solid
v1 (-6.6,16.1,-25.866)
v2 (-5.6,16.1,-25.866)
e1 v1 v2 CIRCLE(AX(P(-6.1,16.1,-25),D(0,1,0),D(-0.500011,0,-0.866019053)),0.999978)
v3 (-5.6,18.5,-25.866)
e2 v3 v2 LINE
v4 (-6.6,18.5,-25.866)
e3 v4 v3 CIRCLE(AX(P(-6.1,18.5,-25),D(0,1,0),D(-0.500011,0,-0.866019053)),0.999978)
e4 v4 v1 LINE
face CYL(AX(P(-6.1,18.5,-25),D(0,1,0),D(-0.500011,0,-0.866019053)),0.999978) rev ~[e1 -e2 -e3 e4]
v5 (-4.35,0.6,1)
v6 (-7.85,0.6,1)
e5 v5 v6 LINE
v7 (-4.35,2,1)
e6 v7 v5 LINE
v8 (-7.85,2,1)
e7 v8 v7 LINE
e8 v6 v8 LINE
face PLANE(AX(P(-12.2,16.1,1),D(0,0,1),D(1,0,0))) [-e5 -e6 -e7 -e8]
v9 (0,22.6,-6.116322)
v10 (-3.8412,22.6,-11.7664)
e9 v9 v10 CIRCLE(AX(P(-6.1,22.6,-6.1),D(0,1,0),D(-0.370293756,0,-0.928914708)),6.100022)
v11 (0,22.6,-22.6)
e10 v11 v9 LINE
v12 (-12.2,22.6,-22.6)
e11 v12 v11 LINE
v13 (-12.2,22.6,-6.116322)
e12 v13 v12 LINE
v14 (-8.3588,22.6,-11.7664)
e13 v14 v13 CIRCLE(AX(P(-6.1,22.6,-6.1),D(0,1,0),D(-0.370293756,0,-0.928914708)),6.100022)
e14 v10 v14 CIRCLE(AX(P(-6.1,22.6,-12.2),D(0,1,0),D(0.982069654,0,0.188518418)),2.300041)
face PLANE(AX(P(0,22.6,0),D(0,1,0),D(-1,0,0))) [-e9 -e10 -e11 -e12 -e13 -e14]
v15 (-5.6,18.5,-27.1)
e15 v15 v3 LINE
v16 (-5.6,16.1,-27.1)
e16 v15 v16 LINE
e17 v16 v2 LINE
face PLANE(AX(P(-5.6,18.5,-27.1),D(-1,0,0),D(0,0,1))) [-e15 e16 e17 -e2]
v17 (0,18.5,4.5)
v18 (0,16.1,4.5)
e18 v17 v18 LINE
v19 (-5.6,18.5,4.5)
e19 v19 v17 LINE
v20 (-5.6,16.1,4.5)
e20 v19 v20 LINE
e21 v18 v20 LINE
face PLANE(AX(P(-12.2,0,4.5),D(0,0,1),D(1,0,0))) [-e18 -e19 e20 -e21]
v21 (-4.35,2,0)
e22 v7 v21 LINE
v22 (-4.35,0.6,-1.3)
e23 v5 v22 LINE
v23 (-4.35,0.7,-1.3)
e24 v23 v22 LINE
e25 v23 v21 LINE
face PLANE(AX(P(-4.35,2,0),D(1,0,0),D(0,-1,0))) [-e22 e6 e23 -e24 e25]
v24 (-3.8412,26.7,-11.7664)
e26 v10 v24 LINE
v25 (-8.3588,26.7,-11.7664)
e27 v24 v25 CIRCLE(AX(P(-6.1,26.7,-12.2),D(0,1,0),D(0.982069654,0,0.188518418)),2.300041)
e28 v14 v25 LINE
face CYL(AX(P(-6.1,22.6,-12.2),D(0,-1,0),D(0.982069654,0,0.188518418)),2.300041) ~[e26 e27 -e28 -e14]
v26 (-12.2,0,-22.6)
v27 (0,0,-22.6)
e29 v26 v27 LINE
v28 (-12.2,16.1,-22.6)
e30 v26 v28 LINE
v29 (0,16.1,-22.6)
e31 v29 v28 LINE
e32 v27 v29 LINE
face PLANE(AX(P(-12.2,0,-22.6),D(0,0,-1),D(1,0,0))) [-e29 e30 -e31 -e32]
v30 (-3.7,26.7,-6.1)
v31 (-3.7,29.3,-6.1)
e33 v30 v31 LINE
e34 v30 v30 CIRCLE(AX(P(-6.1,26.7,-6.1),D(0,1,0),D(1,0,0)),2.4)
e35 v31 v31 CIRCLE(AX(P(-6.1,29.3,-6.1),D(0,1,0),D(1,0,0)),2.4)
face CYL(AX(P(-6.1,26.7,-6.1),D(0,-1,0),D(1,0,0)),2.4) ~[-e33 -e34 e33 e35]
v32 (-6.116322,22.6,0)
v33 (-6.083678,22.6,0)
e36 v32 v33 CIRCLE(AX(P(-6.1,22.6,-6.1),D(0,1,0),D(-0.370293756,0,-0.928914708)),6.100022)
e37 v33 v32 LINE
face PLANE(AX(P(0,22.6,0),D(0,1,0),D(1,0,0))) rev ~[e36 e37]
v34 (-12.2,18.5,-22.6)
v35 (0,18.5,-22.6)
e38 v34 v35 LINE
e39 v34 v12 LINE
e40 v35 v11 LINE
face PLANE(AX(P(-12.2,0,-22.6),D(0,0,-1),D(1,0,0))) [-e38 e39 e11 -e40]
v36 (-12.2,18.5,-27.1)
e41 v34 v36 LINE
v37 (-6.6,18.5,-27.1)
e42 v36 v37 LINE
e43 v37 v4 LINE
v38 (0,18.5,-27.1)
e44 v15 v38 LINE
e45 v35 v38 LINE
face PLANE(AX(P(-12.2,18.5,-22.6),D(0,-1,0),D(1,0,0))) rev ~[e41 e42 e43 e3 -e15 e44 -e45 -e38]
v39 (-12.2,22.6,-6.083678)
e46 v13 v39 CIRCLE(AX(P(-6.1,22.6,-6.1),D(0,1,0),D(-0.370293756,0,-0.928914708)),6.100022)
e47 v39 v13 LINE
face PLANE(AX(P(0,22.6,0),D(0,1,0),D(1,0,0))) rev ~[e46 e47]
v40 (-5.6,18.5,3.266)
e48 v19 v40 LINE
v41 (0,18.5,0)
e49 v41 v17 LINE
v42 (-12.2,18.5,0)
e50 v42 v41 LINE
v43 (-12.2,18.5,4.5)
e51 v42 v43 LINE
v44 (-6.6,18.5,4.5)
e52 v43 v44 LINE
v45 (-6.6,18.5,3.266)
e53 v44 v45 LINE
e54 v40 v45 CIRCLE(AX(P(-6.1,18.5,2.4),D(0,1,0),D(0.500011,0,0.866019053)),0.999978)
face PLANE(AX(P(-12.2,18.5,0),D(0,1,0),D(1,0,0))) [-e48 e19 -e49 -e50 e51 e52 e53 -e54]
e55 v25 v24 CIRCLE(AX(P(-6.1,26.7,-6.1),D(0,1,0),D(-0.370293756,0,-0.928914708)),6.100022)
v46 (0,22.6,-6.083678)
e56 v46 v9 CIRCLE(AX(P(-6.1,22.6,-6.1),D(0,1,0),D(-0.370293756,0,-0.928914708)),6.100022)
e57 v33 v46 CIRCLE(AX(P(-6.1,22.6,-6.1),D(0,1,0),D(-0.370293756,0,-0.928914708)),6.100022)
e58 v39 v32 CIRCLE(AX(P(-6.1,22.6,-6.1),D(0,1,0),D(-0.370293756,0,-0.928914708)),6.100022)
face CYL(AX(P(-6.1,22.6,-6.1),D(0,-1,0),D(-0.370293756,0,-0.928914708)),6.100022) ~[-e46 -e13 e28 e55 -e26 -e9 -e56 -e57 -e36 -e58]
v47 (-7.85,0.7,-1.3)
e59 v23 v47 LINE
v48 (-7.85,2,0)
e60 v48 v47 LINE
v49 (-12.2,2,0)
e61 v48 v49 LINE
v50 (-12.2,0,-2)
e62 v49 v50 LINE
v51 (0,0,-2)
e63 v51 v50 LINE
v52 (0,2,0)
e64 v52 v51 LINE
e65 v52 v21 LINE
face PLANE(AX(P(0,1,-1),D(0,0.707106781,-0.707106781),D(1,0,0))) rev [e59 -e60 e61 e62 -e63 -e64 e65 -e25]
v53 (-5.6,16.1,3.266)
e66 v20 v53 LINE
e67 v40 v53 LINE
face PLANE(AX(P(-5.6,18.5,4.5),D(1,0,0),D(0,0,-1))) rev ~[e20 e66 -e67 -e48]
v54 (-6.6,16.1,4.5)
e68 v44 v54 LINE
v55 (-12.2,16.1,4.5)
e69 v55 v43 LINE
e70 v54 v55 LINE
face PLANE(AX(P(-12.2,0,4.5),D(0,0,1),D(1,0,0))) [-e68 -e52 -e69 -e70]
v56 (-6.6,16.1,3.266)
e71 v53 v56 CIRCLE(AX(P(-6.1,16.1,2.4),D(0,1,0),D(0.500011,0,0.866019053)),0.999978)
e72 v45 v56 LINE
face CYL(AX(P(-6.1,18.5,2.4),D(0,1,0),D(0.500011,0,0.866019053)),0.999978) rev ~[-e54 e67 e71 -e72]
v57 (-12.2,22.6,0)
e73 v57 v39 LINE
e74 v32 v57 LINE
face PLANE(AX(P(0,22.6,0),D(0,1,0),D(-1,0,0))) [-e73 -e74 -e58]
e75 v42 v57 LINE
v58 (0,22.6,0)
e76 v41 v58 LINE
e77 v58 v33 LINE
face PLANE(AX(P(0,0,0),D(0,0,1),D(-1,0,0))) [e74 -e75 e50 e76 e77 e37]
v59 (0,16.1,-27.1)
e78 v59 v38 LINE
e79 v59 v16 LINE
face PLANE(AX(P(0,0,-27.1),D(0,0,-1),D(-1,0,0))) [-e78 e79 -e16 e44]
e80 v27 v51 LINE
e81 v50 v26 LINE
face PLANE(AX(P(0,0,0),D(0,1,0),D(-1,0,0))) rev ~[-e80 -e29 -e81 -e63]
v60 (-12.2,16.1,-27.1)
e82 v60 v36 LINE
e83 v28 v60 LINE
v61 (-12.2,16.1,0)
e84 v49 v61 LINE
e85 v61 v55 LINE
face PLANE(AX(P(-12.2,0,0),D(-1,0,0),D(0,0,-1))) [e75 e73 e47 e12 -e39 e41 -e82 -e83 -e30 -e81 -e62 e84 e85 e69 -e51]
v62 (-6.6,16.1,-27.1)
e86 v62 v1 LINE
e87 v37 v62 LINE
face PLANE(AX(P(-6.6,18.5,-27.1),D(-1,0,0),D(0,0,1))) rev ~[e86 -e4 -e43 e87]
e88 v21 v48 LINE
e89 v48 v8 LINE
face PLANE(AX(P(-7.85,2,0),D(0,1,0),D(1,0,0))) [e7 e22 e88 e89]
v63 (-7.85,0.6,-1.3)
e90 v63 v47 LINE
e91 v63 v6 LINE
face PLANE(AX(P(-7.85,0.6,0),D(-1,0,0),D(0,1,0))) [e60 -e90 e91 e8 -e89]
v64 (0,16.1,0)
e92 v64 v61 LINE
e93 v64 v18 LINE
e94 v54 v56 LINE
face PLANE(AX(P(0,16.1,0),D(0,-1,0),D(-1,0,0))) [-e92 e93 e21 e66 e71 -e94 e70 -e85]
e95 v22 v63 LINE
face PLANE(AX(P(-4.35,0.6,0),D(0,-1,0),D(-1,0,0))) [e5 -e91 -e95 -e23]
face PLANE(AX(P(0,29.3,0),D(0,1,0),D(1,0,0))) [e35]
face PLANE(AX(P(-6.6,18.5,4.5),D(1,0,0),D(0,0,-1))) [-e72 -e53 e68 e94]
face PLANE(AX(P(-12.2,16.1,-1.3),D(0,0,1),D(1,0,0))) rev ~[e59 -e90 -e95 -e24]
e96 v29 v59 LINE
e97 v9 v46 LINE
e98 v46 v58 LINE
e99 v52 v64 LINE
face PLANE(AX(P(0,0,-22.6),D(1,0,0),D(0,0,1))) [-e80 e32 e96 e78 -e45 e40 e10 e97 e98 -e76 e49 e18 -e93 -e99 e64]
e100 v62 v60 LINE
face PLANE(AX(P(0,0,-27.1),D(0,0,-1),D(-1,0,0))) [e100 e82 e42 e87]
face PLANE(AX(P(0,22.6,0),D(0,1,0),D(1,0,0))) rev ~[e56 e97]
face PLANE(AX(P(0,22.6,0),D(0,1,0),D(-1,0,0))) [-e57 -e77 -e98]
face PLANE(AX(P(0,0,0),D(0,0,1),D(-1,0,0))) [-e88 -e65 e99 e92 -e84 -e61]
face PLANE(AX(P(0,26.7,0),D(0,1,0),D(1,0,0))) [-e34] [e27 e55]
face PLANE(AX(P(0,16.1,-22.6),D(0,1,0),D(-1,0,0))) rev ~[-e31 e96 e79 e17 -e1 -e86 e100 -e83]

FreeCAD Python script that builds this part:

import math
import FreeCAD as App
import Part
import Sketcher


def edges_at(feature, points):
    """Names of the edges that pass closest to the given points."""
    edges = feature.Shape.Edges
    near = lambda p: min(range(len(edges)), key=lambda i: edges[i].distToShape(Part.Vertex(*p))[0])
    return sorted({f"Edge{near(p) + 1}" for p in points})

doc = App.newDocument("Part")
body = doc.addObject("PartDesign::Body", "Body")

sketch1 = doc.addObject("Sketcher::SketchObject", "Sketch")
body.addObject(sketch1)
sketch1.AttachmentSupport = (doc.XZ_Plane, [""])
sketch1.MapMode = "FlatFace"
sketch1.addGeometry(Part.LineSegment(App.Vector(-12, 0, 0), App.Vector(0, 0, 0)), False)
sketch1.addGeometry(Part.LineSegment(App.Vector(0, 0, 0), App.Vector(0, -23, 0)), False)
sketch1.addGeometry(Part.LineSegment(App.Vector(0, -23, 0), App.Vector(-12, -23, 0)), False)
sketch1.addGeometry(Part.LineSegment(App.Vector(-12, -23, 0), App.Vector(-12, 0, 0)), False)
sketch1.addConstraint(Sketcher.Constraint("Coincident", 0, 2, 1, 1))
sketch1.addConstraint(Sketcher.Constraint("Coincident", 1, 2, 2, 1))
sketch1.addConstraint(Sketcher.Constraint("Coincident", 2, 2, 3, 1))
sketch1.addConstraint(Sketcher.Constraint("Coincident", 3, 2, 0, 1))
sketch1.addConstraint(Sketcher.Constraint("Horizontal", 0))
sketch1.addConstraint(Sketcher.Constraint("Vertical", 1))
sketch1.addConstraint(Sketcher.Constraint("Horizontal", 2))
sketch1.addConstraint(Sketcher.Constraint("Vertical", 3))
sketch1.addConstraint(Sketcher.Constraint("Coincident", 0, 2, -1, 1))
sketch1.addConstraint(Sketcher.Constraint("DistanceX", 0, 1, 0, 2, 12.2))
sketch1.addConstraint(Sketcher.Constraint("DistanceY", 1, 2, 1, 1, 22.6))
pad1 = doc.addObject("PartDesign::Pad", "Pad")
body.addObject(pad1)
pad1.Profile = sketch1
pad1.Length = 22.6
pad1.Reversed = True

sketch2 = doc.addObject("Sketcher::SketchObject", "Sketch001")
body.addObject(sketch2)
sketch2.AttachmentSupport = (doc.XY_Plane, [""])
sketch2.MapMode = "FlatFace"
sketch2.addGeometry(Part.LineSegment(App.Vector(0, 18.5, 0), App.Vector(-12.2, 18.5, 0)), False)
sketch2.addGeometry(Part.LineSegment(App.Vector(-12.2, 18.5, 0), App.Vector(-12.2, 16.1, 0)), False)
sketch2.addGeometry(Part.LineSegment(App.Vector(-12.2, 16.1, 0), App.Vector(0, 16.1, 0)), False)
sketch2.addGeometry(Part.LineSegment(App.Vector(0, 16.1, 0), App.Vector(0, 18.5, 0)), False)
sketch2.addConstraint(Sketcher.Constraint("Coincident", 0, 2, 1, 1))
sketch2.addConstraint(Sketcher.Constraint("Coincident", 1, 2, 2, 1))
sketch2.addConstraint(Sketcher.Constraint("Coincident", 2, 2, 3, 1))
sketch2.addConstraint(Sketcher.Constraint("Coincident", 3, 2, 0, 1))
sketch2.addConstraint(Sketcher.Constraint("Horizontal", 0))
sketch2.addConstraint(Sketcher.Constraint("Vertical", 1))
sketch2.addConstraint(Sketcher.Constraint("Horizontal", 2))
sketch2.addConstraint(Sketcher.Constraint("Vertical", 3))
sketch2.addConstraint(Sketcher.Constraint("PointOnObject", 2, 2, -2))
sketch2.addConstraint(Sketcher.Constraint("DistanceY", 1, 2, 1, 1, 2.4))
sketch2.addConstraint(Sketcher.Constraint("DistanceX", 0, 2, 0, 1, 12.2))
sketch2.addConstraint(Sketcher.Constraint("DistanceY", -1, 1, 0, 2, 18.5))
pad2 = doc.addObject("PartDesign::Pad", "Pad001")
body.addObject(pad2)
pad2.Profile = sketch2
pad2.Length = 4.5

sketch3 = doc.addObject("Sketcher::SketchObject", "Sketch002")
body.addObject(sketch3)
sketch3.AttachmentSupport = (doc.XY_Plane, [""])
sketch3.MapMode = "FlatFace"
sketch3.AttachmentOffset = App.Placement(App.Vector(0, 0, -22.6), App.Rotation())
sketch3.addGeometry(Part.LineSegment(App.Vector(-12.2, 16.1, 0), App.Vector(-12.2, 18.5, 0)), False)
sketch3.addGeometry(Part.LineSegment(App.Vector(-12.2, 18.5, 0), App.Vector(0, 18.5, 0)), False)
sketch3.addGeometry(Part.LineSegment(App.Vector(0, 18.5, 0), App.Vector(0, 16.1, 0)), False)
sketch3.addGeometry(Part.LineSegment(App.Vector(0, 16.1, 0), App.Vector(-12.2, 16.1, 0)), False)
sketch3.addConstraint(Sketcher.Constraint("Coincident", 0, 2, 1, 1))
sketch3.addConstraint(Sketcher.Constraint("Coincident", 1, 2, 2, 1))
sketch3.addConstraint(Sketcher.Constraint("Coincident", 2, 2, 3, 1))
sketch3.addConstraint(Sketcher.Constraint("Coincident", 3, 2, 0, 1))
sketch3.addConstraint(Sketcher.Constraint("Vertical", 0))
sketch3.addConstraint(Sketcher.Constraint("Horizontal", 1))
sketch3.addConstraint(Sketcher.Constraint("Vertical", 2))
sketch3.addConstraint(Sketcher.Constraint("Horizontal", 3))
sketch3.addConstraint(Sketcher.Constraint("PointOnObject", 1, 2, -2))
sketch3.addConstraint(Sketcher.Constraint("DistanceX", 1, 1, 1, 2, 12.2))
sketch3.addConstraint(Sketcher.Constraint("DistanceY", 0, 1, 0, 2, 2.4))
sketch3.addConstraint(Sketcher.Constraint("DistanceY", -1, 1, 0, 2, 18.5))
pad3 = doc.addObject("PartDesign::Pad", "Pad002")
body.addObject(pad3)
pad3.Profile = sketch3
pad3.Length = 4.5
pad3.Reversed = True

sketch4 = doc.addObject("Sketcher::SketchObject", "Sketch003")
body.addObject(sketch4)
sketch4.AttachmentSupport = (doc.XZ_Plane, [""])
sketch4.MapMode = "FlatFace"
sketch4.AttachmentOffset = App.Placement(App.Vector(0, 0, -18.5), App.Rotation())
sketch4.addGeometry(Part.LineSegment(App.Vector(-6.6, 3.3, 0), App.Vector(-6.6, 4.5, 0)), False)
sketch4.addGeometry(Part.LineSegment(App.Vector(-6.6, 4.5, 0), App.Vector(-5.6, 4.5, 0)), False)
sketch4.addGeometry(Part.LineSegment(App.Vector(-5.6, 4.5, 0), App.Vector(-5.6, 3.3, 0)), False)
sketch4.addGeometry(Part.ArcOfCircle(Part.Circle(App.Vector(-6.1, 2.4, 0), App.Vector(0, 0, 1), 1), math.radians(120), math.radians(420)), False)
sketch4.addGeometry(Part.LineSegment(App.Vector(-5.6, -27.1, 0), App.Vector(-6.6, -27.1, 0)), False)
sketch4.addGeometry(Part.LineSegment(App.Vector(-6.6, -27.1, 0), App.Vector(-6.6, -25.9, 0)), False)
sketch4.addGeometry(Part.ArcOfCircle(Part.Circle(App.Vector(-6.1, -25, 0), App.Vector(0, 0, 1), 1), math.radians(-60), math.radians(240)), False)
sketch4.addGeometry(Part.LineSegment(App.Vector(-5.6, -25.9, 0), App.Vector(-5.6, -27.1, 0)), False)
sketch4.addConstraint(Sketcher.Constraint("Coincident", 0, 2, 1, 1))
sketch4.addConstraint(Sketcher.Constraint("Coincident", 1, 2, 2, 1))
sketch4.addConstraint(Sketcher.Constraint("Coincident", 2, 2, 3, 2))
sketch4.addConstraint(Sketcher.Constraint("Coincident", 3, 1, 0, 1))
sketch4.addConstraint(Sketcher.Constraint("Coincident", 4, 2, 5, 1))
sketch4.addConstraint(Sketcher.Constraint("Coincident", 5, 2, 6, 2))
sketch4.addConstraint(Sketcher.Constraint("Coincident", 6, 1, 7, 1))
sketch4.addConstraint(Sketcher.Constraint("Coincident", 7, 2, 4, 1))
sketch4.addConstraint(Sketcher.Constraint("Vertical", 0))
sketch4.addConstraint(Sketcher.Constraint("Horizontal", 1))
sketch4.addConstraint(Sketcher.Constraint("Vertical", 2))
sketch4.addConstraint(Sketcher.Constraint("Horizontal", 4))
sketch4.addConstraint(Sketcher.Constraint("Vertical", 5))
sketch4.addConstraint(Sketcher.Constraint("Vertical", 7))
sketch4.addConstraint(Sketcher.Constraint("Equal", 3, 6))
sketch4.addConstraint(Sketcher.Constraint("Horizontal", 2, 2, 3, 1))
sketch4.addConstraint(Sketcher.Constraint("Horizontal", 5, 2, 6, 1))
sketch4.addConstraint(Sketcher.Constraint("Vertical", 3, 3, 6, 3))
sketch4.addConstraint(Sketcher.Constraint("Vertical", 3, 1, 4, 2))
sketch4.addConstraint(Sketcher.Constraint("Equal", 2, 5))
sketch4.addConstraint(Sketcher.Constraint("Radius", 3, 1.0))
sketch4.addConstraint(Sketcher.Constraint("DistanceX", 1, 1, 1, 2, 1.0))
sketch4.addConstraint(Sketcher.Constraint("DistanceY", 3, 3, 0, 2, 2.1))
sketch4.addConstraint(Sketcher.Constraint("DistanceY", 6, 3, -1, 1, 25.0))
sketch4.addConstraint(Sketcher.Constraint("DistanceX", 3, 3, -1, 1, 6.1))
sketch4.addConstraint(Sketcher.Constraint("DistanceY", -1, 1, 3, 3, 2.4))
pocket1 = doc.addObject("PartDesign::Pocket", "Pocket")
body.addObject(pocket1)
pocket1.Profile = sketch4
pocket1.Length = 2.4
pocket1.Reversed = True

sketch5 = doc.addObject("Sketcher::SketchObject", "Sketch004")
body.addObject(sketch5)
sketch5.AttachmentSupport = (doc.XZ_Plane, [""])
sketch5.MapMode = "FlatFace"
sketch5.AttachmentOffset = App.Placement(App.Vector(0, 0, -22.6), App.Rotation())
sketch5.addGeometry(Part.ArcOfCircle(Part.Circle(App.Vector(-6.1, -12.2, 0), App.Vector(0, 0, 1), 2.3), math.radians(169), math.radians(371)), False)
sketch5.addGeometry(Part.ArcOfCircle(Part.Circle(App.Vector(-6.1, -6.1, 0), App.Vector(0, 0, 1), 6.1), math.radians(-68), math.radians(248)), False)
sketch5.addConstraint(Sketcher.Constraint("Coincident", 0, 1, 1, 2))
sketch5.addConstraint(Sketcher.Constraint("Coincident", 1, 1, 0, 2))
sketch5.addConstraint(Sketcher.Constraint("Horizontal", 0, 1, 1, 1))
sketch5.addConstraint(Sketcher.Constraint("Radius", 1, 6.1))
sketch5.addConstraint(Sketcher.Constraint("DistanceX", 0, 3, -1, 1, 6.1))
sketch5.addConstraint(Sketcher.Constraint("DistanceY", 0, 3, -1, 1, 12.2))
sketch5.addConstraint(Sketcher.Constraint("DistanceY", 1, 3, -1, 1, 6.1))
sketch5.addConstraint(Sketcher.Constraint("Radius", 0, 2.3))
pad4 = doc.addObject("PartDesign::Pad", "Pad003")
body.addObject(pad4)
pad4.Profile = sketch5
pad4.Length = 4.1
pad4.Reversed = True

sketch6 = doc.addObject("Sketcher::SketchObject", "Sketch005")
body.addObject(sketch6)
sketch6.AttachmentSupport = (doc.XZ_Plane, [""])
sketch6.MapMode = "FlatFace"
sketch6.AttachmentOffset = App.Placement(App.Vector(0, 0, -26.7), App.Rotation())
sketch6.addGeometry(Part.Circle(App.Vector(-6.1, -6.1, 0), App.Vector(0, 0, 1), 2.4), False)
sketch6.addConstraint(Sketcher.Constraint("Diameter", 0, 4.8))
sketch6.addConstraint(Sketcher.Constraint("DistanceX", 0, 3, -1, 1, 6.1))
sketch6.addConstraint(Sketcher.Constraint("DistanceY", 0, 3, -1, 1, 6.1))
pad5 = doc.addObject("PartDesign::Pad", "Pad004")
body.addObject(pad5)
pad5.Profile = sketch6
pad5.Length = 2.6
pad5.Reversed = True
doc.recompute()

chamfer = doc.addObject("PartDesign::Chamfer", "Chamfer")
body.addObject(chamfer)
chamfer.Base = (pad5, edges_at(pad5, [(-6.1, 0, 0)]))
chamfer.Size = 2

sketch7 = doc.addObject("Sketcher::SketchObject", "Sketch006")
body.addObject(sketch7)
sketch7.AttachmentSupport = (doc.XY_Plane, [""])
sketch7.MapMode = "FlatFace"
sketch7.addGeometry(Part.LineSegment(App.Vector(-4.3, 2, 0), App.Vector(-7.8, 2, 0)), False)
sketch7.addGeometry(Part.LineSegment(App.Vector(-7.8, 2, 0), App.Vector(-7.8, 0.6, 0)), False)
sketch7.addGeometry(Part.LineSegment(App.Vector(-7.8, 0.6, 0), App.Vector(-4.3, 0.6, 0)), False)
sketch7.addGeometry(Part.LineSegment(App.Vector(-4.3, 0.6, 0), App.Vector(-4.3, 2, 0)), False)
sketch7.addConstraint(Sketcher.Constraint("Coincident", 0, 2, 1, 1))
sketch7.addConstraint(Sketcher.Constraint("Coincident", 1, 2, 2, 1))
sketch7.addConstraint(Sketcher.Constraint("Coincident", 2, 2, 3, 1))
sketch7.addConstraint(Sketcher.Constraint("Coincident", 3, 2, 0, 1))
sketch7.addConstraint(Sketcher.Constraint("Horizontal", 0))
sketch7.addConstraint(Sketcher.Constraint("Vertical", 1))
sketch7.addConstraint(Sketcher.Constraint("Horizontal", 2))
sketch7.addConstraint(Sketcher.Constraint("Vertical", 3))
sketch7.addConstraint(Sketcher.Constraint("DistanceX", 0, 2, 0, 1, 3.5))
sketch7.addConstraint(Sketcher.Constraint("DistanceY", 1, 2, 1, 1, 1.4))
sketch7.addConstraint(Sketcher.Constraint("DistanceY", -1, 1, 0, 2, 2.0))
sketch7.addConstraint(Sketcher.Constraint("DistanceX", 0, 2, -1, 1, 7.85))
pad6 = doc.addObject("PartDesign::Pad", "Pad005")
body.addObject(pad6)
pad6.Profile = sketch7
pad6.Type = "TwoLengths"
pad6.Length = 1
pad6.Length2 = 1.3

doc.recompute()
